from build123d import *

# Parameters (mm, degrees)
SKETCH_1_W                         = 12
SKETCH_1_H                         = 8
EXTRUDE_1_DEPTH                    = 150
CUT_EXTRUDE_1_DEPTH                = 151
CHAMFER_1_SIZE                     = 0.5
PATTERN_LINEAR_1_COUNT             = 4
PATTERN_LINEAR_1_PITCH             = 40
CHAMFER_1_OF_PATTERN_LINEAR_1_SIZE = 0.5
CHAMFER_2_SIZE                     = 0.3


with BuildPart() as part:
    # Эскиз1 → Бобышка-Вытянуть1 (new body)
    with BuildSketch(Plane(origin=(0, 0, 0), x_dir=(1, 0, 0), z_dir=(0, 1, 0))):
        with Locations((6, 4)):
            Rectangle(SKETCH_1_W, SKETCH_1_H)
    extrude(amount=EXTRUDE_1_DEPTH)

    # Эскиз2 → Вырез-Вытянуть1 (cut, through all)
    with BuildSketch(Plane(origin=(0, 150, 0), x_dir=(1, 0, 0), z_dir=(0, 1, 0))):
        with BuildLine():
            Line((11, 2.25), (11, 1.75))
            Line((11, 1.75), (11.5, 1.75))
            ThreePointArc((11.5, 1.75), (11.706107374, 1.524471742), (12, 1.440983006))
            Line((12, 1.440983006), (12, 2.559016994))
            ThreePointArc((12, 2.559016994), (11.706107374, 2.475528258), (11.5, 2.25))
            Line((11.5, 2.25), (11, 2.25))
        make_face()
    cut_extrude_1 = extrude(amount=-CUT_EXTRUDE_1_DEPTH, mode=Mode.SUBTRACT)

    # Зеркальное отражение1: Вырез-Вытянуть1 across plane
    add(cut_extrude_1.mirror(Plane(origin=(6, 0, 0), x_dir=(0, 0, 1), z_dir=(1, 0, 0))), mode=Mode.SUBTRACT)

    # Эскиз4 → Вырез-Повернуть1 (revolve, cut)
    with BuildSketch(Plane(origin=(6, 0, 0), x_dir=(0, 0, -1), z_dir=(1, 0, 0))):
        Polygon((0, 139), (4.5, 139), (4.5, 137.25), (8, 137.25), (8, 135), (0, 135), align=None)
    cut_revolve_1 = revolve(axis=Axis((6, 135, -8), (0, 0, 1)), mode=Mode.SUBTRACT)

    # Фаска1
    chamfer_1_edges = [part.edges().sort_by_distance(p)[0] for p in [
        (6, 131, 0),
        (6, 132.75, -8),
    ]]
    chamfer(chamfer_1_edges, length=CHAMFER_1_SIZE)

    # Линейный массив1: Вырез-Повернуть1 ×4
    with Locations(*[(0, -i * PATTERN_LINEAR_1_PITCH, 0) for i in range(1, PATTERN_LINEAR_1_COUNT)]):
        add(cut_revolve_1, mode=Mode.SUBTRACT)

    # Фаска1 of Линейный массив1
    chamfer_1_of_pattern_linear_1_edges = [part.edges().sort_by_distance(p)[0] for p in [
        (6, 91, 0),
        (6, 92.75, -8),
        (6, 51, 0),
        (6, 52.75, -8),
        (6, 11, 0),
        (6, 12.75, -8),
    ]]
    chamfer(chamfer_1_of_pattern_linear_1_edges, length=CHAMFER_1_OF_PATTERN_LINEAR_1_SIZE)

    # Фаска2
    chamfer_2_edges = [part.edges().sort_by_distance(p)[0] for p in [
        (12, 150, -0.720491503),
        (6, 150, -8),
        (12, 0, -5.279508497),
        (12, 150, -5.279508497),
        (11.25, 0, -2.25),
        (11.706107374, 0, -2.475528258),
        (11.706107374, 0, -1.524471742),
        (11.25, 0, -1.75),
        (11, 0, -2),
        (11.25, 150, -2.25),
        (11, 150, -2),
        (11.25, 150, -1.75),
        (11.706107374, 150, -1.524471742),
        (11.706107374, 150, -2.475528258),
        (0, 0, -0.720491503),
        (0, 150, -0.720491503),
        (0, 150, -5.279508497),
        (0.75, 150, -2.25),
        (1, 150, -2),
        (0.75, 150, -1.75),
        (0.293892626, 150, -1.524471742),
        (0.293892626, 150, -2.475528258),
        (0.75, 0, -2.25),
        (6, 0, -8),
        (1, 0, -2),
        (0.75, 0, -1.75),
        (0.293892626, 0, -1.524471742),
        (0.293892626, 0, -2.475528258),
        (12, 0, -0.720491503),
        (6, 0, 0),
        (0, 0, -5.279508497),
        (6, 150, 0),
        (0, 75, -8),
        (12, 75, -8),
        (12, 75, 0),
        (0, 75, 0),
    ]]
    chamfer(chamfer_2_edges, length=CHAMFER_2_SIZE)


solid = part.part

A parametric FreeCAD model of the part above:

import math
import FreeCAD as App
import Part
import Sketcher
from FreeCAD import Vector
Q = App.Units.Quantity


def edges_at(feature, points):
    """Names of the edges that pass closest to the given points."""
    edges = feature.Shape.Edges
    near = lambda p: min(range(len(edges)), key=lambda i: edges[i].distToShape(Part.Vertex(*p))[0])
    return sorted({f"Edge{near(p) + 1}" for p in points})


def add_polygon(sketch, points):
    """Adds a closed chain of lines whose ends are joined by coincident constraints."""
    first, n = sketch.GeometryCount, len(points)
    for a, b in zip(points, points[1:] + points[:1]):
        sketch.addGeometry(Part.LineSegment(App.Vector(*a, 0), App.Vector(*b, 0)), False)
    for i in range(n):
        sketch.addConstraint(Sketcher.Constraint("Coincident", first + i, 2, first + (i + 1) % n, 1))

doc = App.newDocument("Part")
params = doc.addObject("Spreadsheet::Sheet", "Params")
for row, (alias, value) in enumerate([
    ("sketch1_width", "12 mm"),
    ("sketch1_height", "8 mm"),
    ("pad1_length", "150 mm"),
    ("sketch2_width", "0.5 mm"),
    ("sketch3_width", "4 mm"),
    ("sketch3_height", "8 mm"),
    ("sketch3_height2", "4.5 mm"),
    ("sketch3_width2", "2.25 mm"),
    ("groove_angle", "360 deg"),
    ("chamfer_size", "0.5 mm"),
    ("linearpattern_pitch", "40 mm"),
    ("chamfer2_size", "0.5 mm"),
    ("chamfer3_size", "0.3 mm"),
], start=1):
    params.set(f"A{row}", alias)
    params.set(f"B{row}", "=" + value)
    params.setAlias(f"B{row}", alias)

body = doc.addObject("PartDesign::Body", "Body")

sketch1 = body.newObject("Sketcher::SketchObject", "Sketch")
sketch1.AttachmentSupport = (doc.getObject("XZ_Plane"), [""])
sketch1.MapMode = "FlatFace"
add_polygon(sketch1, [(0, -8), (0, 0), (12, 0), (12, -8)])
sketch1.addConstraint(Sketcher.Constraint("Vertical", 0))
sketch1.addConstraint(Sketcher.Constraint("Horizontal", 1))
sketch1.addConstraint(Sketcher.Constraint("Vertical", 2))
sketch1.addConstraint(Sketcher.Constraint("Horizontal", 3))
sketch1.addConstraint(Sketcher.Constraint("Coincident", 0, 2, -1, 1))
sketch1.addConstraint(Sketcher.Constraint("DistanceX", 1, 1, 1, 2, Q("12 mm")))
sketch1.addConstraint(Sketcher.Constraint("DistanceY", 0, 1, 0, 2, Q("8 mm")))
sketch1.setExpression("Constraints[9]", "Params.sketch1_width")
sketch1.setExpression("Constraints[10]", "Params.sketch1_height")
pad1 = body.newObject("PartDesign::Pad", "Pad")
pad1.Profile = sketch1
pad1.setExpression("Length", "Params.pad1_length")
pad1.Reversed = True

sketch2 = body.newObject("Sketcher::SketchObject", "Sketch001")
sketch2.AttachmentSupport = (doc.getObject("XZ_Plane"), [""])
sketch2.MapMode = "FlatFace"
sketch2.AttachmentOffset = App.Placement(Vector(0, 0, -150), App.Rotation())
sketch2.addGeometry(Part.LineSegment(Vector(11, -2.2, 0), Vector(11, -1.8, 0)), False)
sketch2.addGeometry(Part.LineSegment(Vector(11, -1.8, 0), Vector(11.5, -1.8, 0)), False)
sketch2.addGeometry(Part.ArcOfCircle(Part.Circle(Vector(12, -2, 0), Vector(0, 0, 1), 0.6), math.radians(90), math.radians(153)), False)
sketch2.addGeometry(Part.LineSegment(Vector(12, -1.4, 0), Vector(12, -2.6, 0)), False)
sketch2.addGeometry(Part.ArcOfCircle(Part.Circle(Vector(12, -2, 0), Vector(0, 0, 1), 0.6), math.radians(-153), math.radians(-90)), False)
sketch2.addGeometry(Part.LineSegment(Vector(11.5, -2.2, 0), Vector(11, -2.2, 0)), False)
sketch2.addConstraint(Sketcher.Constraint("Coincident", 0, 2, 1, 1))
sketch2.addConstraint(Sketcher.Constraint("Coincident", 1, 2, 2, 2))
sketch2.addConstraint(Sketcher.Constraint("Coincident", 2, 1, 3, 1))
sketch2.addConstraint(Sketcher.Constraint("Coincident", 3, 2, 4, 2))
sketch2.addConstraint(Sketcher.Constraint("Coincident", 4, 1, 5, 1))
sketch2.addConstraint(Sketcher.Constraint("Coincident", 5, 2, 0, 1))
sketch2.addConstraint(Sketcher.Constraint("Vertical", 0))
sketch2.addConstraint(Sketcher.Constraint("Horizontal", 1))
sketch2.addConstraint(Sketcher.Constraint("Vertical", 3))
sketch2.addConstraint(Sketcher.Constraint("Horizontal", 5))
sketch2.addConstraint(Sketcher.Constraint("Coincident", 4, 3, 2, 3))
sketch2.addConstraint(Sketcher.Constraint("Equal", 2, 4))
sketch2.addConstraint(Sketcher.Constraint("Vertical", 4, 3, 2, 1))
sketch2.addConstraint(Sketcher.Constraint("Vertical", 1, 2, 4, 1))
sketch2.addConstraint(Sketcher.Constraint("Equal", 5, 0))
sketch2.addConstraint(Sketcher.Constraint("DistanceX", 1, 1, 1, 2, Q("0.5 mm")))
sketch2.addConstraint(Sketcher.Constraint("DistanceX", -1, 1, 2, 3, Q("12 mm")))
sketch2.addConstraint(Sketcher.Constraint("DistanceY", 2, 3, -1, 1, Q("2 mm")))
sketch2.addConstraint(Sketcher.Constraint("DistanceX", -1, 1, 0, 2, Q("11 mm")))
sketch2.setExpression("Constraints[15]", "Params.sketch2_width")
pocket1 = body.newObject("PartDesign::Pocket", "Pocket")
pocket1.Profile = sketch2
pocket1.Type = "ThroughAll"
pocket1.Reversed = True
doc.recompute()

datumplane = body.newObject("PartDesign::Plane", "DatumPlane")
datumplane.AttachmentSupport = (doc.getObject("YZ_Plane"), [""])
datumplane.MapMode = "FlatFace"
datumplane.AttachmentOffset = App.Placement(Vector(0, 0, 6), App.Rotation())
mirrored = body.newObject("PartDesign::Mirrored", "Mirrored")
mirrored.Originals = [pocket1]
mirrored.MirrorPlane = (datumplane, [""])
body.Tip = mirrored

sketch3 = body.newObject("Sketcher::SketchObject", "Sketch002")
sketch3.AttachmentSupport = (doc.getObject("YZ_Plane"), [""])
sketch3.MapMode = "FlatFace"
sketch3.AttachmentOffset = App.Placement(Vector(0, 0, 6), App.Rotation())
add_polygon(sketch3, [(139, -4.5), (139, 0), (135, 0), (135, -8), (137.2, -8), (137.2, -4.5)])
sketch3.addGeometry(Part.LineSegment(Vector(135, -8, 0), Vector(135, 0, 0)), True)
sketch3.addConstraint(Sketcher.Constraint("Vertical", 0))
sketch3.addConstraint(Sketcher.Constraint("Horizontal", 1))
sketch3.addConstraint(Sketcher.Constraint("Vertical", 2))
sketch3.addConstraint(Sketcher.Constraint("Horizontal", 3))
sketch3.addConstraint(Sketcher.Constraint("Vertical", 4))
sketch3.addConstraint(Sketcher.Constraint("Horizontal", 5))
sketch3.addConstraint(Sketcher.Constraint("Vertical", 6))
sketch3.addConstraint(Sketcher.Constraint("Coincident", 6, 1, 2, 2))
sketch3.addConstraint(Sketcher.Constraint("PointOnObject", 0, 2, -1))
sketch3.addConstraint(Sketcher.Constraint("PointOnObject", 6, 2, -1))
sketch3.addConstraint(Sketcher.Constraint("DistanceX", 1, 2, 1, 1, Q("4 mm")))
sketch3.addConstraint(Sketcher.Constraint("DistanceY", 2, 2, 2, 1, Q("8 mm")))
sketch3.addConstraint(Sketcher.Constraint("DistanceY", 0, 1, 0, 2, Q("4.5 mm")))
sketch3.addConstraint(Sketcher.Constraint("DistanceX", -1, 1, 0, 2, Q("139 mm")))
sketch3.addConstraint(Sketcher.Constraint("DistanceX", 3, 1, 3, 2, Q("2.25 mm")))
sketch3.setExpression("Constraints[16]", "Params.sketch3_width")
sketch3.setExpression("Constraints[17]", "Params.sketch3_height")
sketch3.setExpression("Constraints[18]", "Params.sketch3_height2")
sketch3.setExpression("Constraints[20]", "Params.sketch3_width2")
groove = body.newObject("PartDesign::Groove", "Groove")
groove.Profile = sketch3
groove.ReferenceAxis = (sketch3, ["Axis0"])
groove.setExpression("Angle", "Params.groove_angle")
doc.recompute()

chamfer = body.newObject("PartDesign::Chamfer", "Chamfer")
chamfer.Base = (groove, edges_at(groove, [(6, 131, 0), (6, 132.75, -8)]))
chamfer.setExpression("Size", "Params.chamfer_size")
doc.recompute()

linearpattern = body.newObject("PartDesign::LinearPattern", "LinearPattern")
linearpattern.Originals = [groove]
linearpattern.Direction = (doc.getObject("Y_Axis"), [""])
linearpattern.Mode = "offset"
linearpattern.setExpression("Offset", "Params.linearpattern_pitch")
linearpattern.Occurrences = 4
linearpattern.Reversed = True
body.Tip = linearpattern
doc.recompute()

chamfer2 = body.newObject("PartDesign::Chamfer", "Chamfer001")
chamfer2.Base = (linearpattern, edges_at(linearpattern, [
    (6, 91, 0),
    (6, 92.75, -8),
    (6, 51, 0),
    (6, 52.75, -8),
    (6, 11, 0),
    (6, 12.75, -8),
]))
chamfer2.setExpression("Size", "Params.chamfer2_size")
doc.recompute()

chamfer3 = body.newObject("PartDesign::Chamfer", "Chamfer002")
chamfer3.Base = (chamfer2, edges_at(chamfer2, [
    (12, 150, -0.72),
    (6, 150, -8),
    (12, 0, -5.28),
    (12, 150, -5.28),
    (11.25, 0, -2.25),
    (11.706, 0, -2.476),
    (11.706, 0, -1.524),
    (11.25, 0, -1.75),
    (11, 0, -2),
    (11.25, 150, -2.25),
    (11, 150, -2),
    (11.25, 150, -1.75),
    (11.706, 150, -1.524),
    (11.706, 150, -2.476),
    (0, 0, -0.72),
    (0, 150, -0.72),
    (0, 150, -5.28),
    (0.75, 150, -2.25),
    (1, 150, -2),
    (0.75, 150, -1.75),
    (0.294, 150, -1.524),
    (0.294, 150, -2.476),
    (0.75, 0, -2.25),
    (6, 0, -8),
    (1, 0, -2),
    (0.75, 0, -1.75),
    (0.294, 0, -1.524),
    (0.294, 0, -2.476),
    (12, 0, -0.72),
    (6, 0, 0),
    (0, 0, -5.28),
    (6, 150, 0),
    (0, 75, -8),
    (12, 75, -8),
    (12, 75, 0),
    (0, 75, 0),
]))
chamfer3.setExpression("Size", "Params.chamfer3_size")

doc.recompute()
